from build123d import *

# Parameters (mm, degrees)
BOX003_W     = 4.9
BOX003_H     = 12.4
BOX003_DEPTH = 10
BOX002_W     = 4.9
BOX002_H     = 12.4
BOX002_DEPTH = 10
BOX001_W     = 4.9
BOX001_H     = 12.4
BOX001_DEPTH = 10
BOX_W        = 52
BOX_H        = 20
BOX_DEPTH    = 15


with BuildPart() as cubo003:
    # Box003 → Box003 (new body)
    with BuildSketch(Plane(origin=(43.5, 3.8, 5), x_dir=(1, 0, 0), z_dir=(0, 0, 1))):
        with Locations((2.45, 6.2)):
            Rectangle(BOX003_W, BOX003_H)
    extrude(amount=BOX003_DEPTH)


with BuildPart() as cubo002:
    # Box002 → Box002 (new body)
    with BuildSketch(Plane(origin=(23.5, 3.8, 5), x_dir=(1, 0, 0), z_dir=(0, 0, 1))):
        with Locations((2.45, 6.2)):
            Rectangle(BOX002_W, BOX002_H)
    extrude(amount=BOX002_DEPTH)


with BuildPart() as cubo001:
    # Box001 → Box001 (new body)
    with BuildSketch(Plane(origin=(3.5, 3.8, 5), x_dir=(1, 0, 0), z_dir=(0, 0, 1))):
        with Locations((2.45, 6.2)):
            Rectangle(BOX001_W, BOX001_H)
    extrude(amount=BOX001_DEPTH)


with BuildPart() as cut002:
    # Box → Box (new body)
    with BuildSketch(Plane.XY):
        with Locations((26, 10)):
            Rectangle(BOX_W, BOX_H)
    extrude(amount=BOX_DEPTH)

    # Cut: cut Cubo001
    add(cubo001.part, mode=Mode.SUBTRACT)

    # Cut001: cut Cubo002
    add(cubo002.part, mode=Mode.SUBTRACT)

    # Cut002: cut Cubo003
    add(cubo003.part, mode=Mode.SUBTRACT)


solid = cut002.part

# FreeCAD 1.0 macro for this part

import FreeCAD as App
import Part
import Sketcher


def add_polygon(sketch, points):
    """Adds a closed chain of lines whose ends are joined by coincident constraints."""
    first, n = sketch.GeometryCount, len(points)
    for a, b in zip(points, points[1:] + points[:1]):
        sketch.addGeometry(Part.LineSegment(App.Vector(*a, 0), App.Vector(*b, 0)), False)
    for i in range(n):
        sketch.addConstraint(Sketcher.Constraint("Coincident", first + i, 2, first + (i + 1) % n, 1))

doc = App.newDocument("Part")
body = doc.addObject("PartDesign::Body", "Body")

sketch1 = body.newObject("Sketcher::SketchObject", "Sketch")
sketch1.AttachmentSupport = (doc.getObject("XY_Plane"), [""])
sketch1.MapMode = "FlatFace"
sketch1.AttachmentOffset = App.Placement(App.Vector(0, 0, 5), App.Rotation())
add_polygon(sketch1, [(43.5, 16.2), (43.5, 3.8), (48.4, 3.8), (48.4, 16.2)])
sketch1.addConstraint([
    Sketcher.Constraint("Vertical", 0),
    Sketcher.Constraint("Horizontal", 1),
    Sketcher.Constraint("Vertical", 2),
    Sketcher.Constraint("Horizontal", 3),
    Sketcher.Constraint("DistanceX", 1, 1, 1, 2, 4.9),
    Sketcher.Constraint("DistanceY", 0, 2, 0, 1, 12.4),
    Sketcher.Constraint("DistanceX", -1, 1, 0, 2, 43.5),
    Sketcher.Constraint("DistanceY", -1, 1, 0, 2, 3.8),
])
pad1 = body.newObject("PartDesign::Pad", "Pad")
pad1.Profile = sketch1
pad1.Length = 10
body2 = doc.addObject("PartDesign::Body", "Body001")

sketch2 = body2.newObject("Sketcher::SketchObject", "Sketch001")
sketch2.AttachmentSupport = (doc.getObject("XY_Plane001"), [""])
sketch2.MapMode = "FlatFace"
sketch2.AttachmentOffset = App.Placement(App.Vector(0, 0, 5), App.Rotation())
add_polygon(sketch2, [(23.5, 16.2), (23.5, 3.8), (28.4, 3.8), (28.4, 16.2)])
sketch2.addConstraint([
    Sketcher.Constraint("Vertical", 0),
    Sketcher.Constraint("Horizontal", 1),
    Sketcher.Constraint("Vertical", 2),
    Sketcher.Constraint("Horizontal", 3),
    Sketcher.Constraint("DistanceX", 1, 1, 1, 2, 4.9),
    Sketcher.Constraint("DistanceY", 0, 2, 0, 1, 12.4),
    Sketcher.Constraint("DistanceX", -1, 1, 0, 2, 23.5),
    Sketcher.Constraint("DistanceY", -1, 1, 0, 2, 3.8),
])
pad2 = body2.newObject("PartDesign::Pad", "Pad001")
pad2.Profile = sketch2
pad2.Length = 10
body3 = doc.addObject("PartDesign::Body", "Body002")

sketch3 = body3.newObject("Sketcher::SketchObject", "Sketch002")
sketch3.AttachmentSupport = (doc.getObject("XY_Plane002"), [""])
sketch3.MapMode = "FlatFace"
sketch3.AttachmentOffset = App.Placement(App.Vector(0, 0, 5), App.Rotation())
add_polygon(sketch3, [(3.5, 16.2), (3.5, 3.8), (8.4, 3.8), (8.4, 16.2)])
sketch3.addConstraint([
    Sketcher.Constraint("Vertical", 0),
    Sketcher.Constraint("Horizontal", 1),
    Sketcher.Constraint("Vertical", 2),
    Sketcher.Constraint("Horizontal", 3),
    Sketcher.Constraint("DistanceX", 1, 1, 1, 2, 4.9),
    Sketcher.Constraint("DistanceY", 0, 2, 0, 1, 12.4),
    Sketcher.Constraint("DistanceX", -1, 1, 0, 2, 3.5),
    Sketcher.Constraint("DistanceY", -1, 1, 0, 2, 3.8),
])
pad3 = body3.newObject("PartDesign::Pad", "Pad002")
pad3.Profile = sketch3
pad3.Length = 10
body4 = doc.addObject("PartDesign::Body", "Body003")

sketch4 = body4.newObject("Sketcher::SketchObject", "Sketch003")
sketch4.AttachmentSupport = (doc.getObject("XY_Plane003"), [""])
sketch4.MapMode = "FlatFace"
add_polygon(sketch4, [(0, 20), (0, 0), (52, 0), (52, 20)])
sketch4.addConstraint([
    Sketcher.Constraint("Vertical", 0),
    Sketcher.Constraint("Horizontal", 1),
    Sketcher.Constraint("Vertical", 2),
    Sketcher.Constraint("Horizontal", 3),
    Sketcher.Constraint("Coincident", 0, 2, -1, 1),
    Sketcher.Constraint("DistanceX", 1, 1, 1, 2, 52.0),
    Sketcher.Constraint("DistanceY", 0, 2, 0, 1, 20.0),
])
pad4 = body4.newObject("PartDesign::Pad", "Pad003")
pad4.Profile = sketch4
pad4.Length = 15
doc.recompute()

boolean = body4.newObject("PartDesign::Boolean", "Boolean")
boolean.Type = "Cut"
boolean.addObjects([body3])
doc.recompute()

boolean2 = body4.newObject("PartDesign::Boolean", "Boolean001")
boolean2.Type = "Cut"
boolean2.addObjects([body2])
doc.recompute()

boolean3 = body4.newObject("PartDesign::Boolean", "Boolean002")
boolean3.Type = "Cut"
boolean3.addObjects([body])

doc.recompute()
